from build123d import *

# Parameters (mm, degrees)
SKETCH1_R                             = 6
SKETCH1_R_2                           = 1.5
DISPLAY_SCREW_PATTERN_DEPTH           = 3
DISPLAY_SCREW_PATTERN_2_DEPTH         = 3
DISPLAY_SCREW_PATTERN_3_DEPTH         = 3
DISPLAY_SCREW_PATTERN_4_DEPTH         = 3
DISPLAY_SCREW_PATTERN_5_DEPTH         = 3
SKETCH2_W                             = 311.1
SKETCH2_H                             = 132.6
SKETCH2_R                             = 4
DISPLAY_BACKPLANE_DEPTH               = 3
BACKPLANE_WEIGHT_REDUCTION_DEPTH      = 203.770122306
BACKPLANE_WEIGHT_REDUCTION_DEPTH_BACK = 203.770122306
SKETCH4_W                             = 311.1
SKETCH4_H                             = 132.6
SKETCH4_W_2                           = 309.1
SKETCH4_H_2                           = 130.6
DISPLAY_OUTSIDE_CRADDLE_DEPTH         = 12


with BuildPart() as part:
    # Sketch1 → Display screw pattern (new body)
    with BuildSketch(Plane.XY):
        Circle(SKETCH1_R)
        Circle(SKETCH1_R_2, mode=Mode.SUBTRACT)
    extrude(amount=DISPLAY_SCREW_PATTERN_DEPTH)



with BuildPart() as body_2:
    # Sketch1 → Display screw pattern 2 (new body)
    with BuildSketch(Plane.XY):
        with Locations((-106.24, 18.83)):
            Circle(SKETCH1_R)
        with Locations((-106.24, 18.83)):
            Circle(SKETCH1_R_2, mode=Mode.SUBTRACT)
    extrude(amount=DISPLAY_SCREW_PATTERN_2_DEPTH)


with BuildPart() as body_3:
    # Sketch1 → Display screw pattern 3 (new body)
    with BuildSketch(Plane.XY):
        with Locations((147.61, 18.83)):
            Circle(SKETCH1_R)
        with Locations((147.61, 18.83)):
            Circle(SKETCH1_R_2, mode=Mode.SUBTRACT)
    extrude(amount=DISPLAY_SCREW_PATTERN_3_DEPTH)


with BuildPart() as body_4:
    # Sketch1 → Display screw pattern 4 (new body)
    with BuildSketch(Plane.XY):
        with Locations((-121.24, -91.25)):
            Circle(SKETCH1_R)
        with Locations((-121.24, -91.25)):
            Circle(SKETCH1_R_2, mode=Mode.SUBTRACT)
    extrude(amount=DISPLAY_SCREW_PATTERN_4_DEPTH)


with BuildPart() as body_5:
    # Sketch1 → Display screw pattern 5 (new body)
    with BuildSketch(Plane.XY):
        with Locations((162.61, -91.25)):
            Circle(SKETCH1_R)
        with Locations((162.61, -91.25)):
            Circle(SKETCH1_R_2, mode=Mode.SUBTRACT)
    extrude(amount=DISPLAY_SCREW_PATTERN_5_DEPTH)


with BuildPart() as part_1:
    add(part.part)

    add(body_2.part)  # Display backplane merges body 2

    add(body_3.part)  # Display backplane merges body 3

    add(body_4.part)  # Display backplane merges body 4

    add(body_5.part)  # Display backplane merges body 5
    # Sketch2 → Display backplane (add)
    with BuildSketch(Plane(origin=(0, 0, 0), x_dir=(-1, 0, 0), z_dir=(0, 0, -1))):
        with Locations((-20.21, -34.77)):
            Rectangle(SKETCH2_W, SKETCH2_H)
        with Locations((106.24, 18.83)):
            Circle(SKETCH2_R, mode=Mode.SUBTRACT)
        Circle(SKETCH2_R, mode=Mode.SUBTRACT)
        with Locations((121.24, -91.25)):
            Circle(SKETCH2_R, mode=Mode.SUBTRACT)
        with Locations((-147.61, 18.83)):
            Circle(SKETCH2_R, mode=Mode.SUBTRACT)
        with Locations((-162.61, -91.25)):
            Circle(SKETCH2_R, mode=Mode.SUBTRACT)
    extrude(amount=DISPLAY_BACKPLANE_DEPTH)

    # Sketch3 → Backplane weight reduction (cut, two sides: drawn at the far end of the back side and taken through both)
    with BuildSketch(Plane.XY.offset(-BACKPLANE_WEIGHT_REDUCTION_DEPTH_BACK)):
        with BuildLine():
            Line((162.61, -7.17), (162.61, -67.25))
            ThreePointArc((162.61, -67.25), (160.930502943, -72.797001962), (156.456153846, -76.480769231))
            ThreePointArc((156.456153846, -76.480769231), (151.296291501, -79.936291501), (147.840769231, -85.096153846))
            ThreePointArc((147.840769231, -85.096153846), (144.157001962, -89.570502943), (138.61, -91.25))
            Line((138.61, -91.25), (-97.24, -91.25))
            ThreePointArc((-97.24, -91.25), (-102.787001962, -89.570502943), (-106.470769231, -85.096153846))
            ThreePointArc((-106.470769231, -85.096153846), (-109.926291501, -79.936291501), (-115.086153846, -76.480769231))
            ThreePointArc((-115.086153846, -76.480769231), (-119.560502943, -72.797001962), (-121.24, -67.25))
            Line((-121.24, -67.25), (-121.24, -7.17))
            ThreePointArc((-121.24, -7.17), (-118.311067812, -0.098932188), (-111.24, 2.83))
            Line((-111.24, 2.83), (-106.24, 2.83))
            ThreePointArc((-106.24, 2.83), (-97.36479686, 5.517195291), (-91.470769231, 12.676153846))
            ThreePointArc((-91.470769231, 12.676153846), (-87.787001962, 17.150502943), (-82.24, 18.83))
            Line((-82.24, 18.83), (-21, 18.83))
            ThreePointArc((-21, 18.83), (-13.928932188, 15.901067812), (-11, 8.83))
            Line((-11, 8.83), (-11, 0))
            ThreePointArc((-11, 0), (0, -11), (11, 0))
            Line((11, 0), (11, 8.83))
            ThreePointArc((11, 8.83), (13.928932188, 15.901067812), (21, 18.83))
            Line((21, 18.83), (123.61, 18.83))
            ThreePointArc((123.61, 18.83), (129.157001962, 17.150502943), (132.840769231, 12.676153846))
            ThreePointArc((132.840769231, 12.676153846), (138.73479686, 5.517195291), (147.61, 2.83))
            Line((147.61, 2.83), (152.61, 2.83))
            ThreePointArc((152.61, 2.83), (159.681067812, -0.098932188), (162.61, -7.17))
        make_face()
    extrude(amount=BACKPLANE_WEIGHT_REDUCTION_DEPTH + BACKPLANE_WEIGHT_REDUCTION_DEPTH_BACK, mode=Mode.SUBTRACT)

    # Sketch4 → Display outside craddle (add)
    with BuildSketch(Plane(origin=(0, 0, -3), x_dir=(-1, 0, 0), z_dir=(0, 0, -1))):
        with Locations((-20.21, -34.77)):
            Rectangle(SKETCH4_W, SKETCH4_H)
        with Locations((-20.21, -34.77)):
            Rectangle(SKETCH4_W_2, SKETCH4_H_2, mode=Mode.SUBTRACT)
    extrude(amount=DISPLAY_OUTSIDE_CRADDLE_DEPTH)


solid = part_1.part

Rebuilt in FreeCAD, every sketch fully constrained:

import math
import FreeCAD as App
import Part
import Sketcher

V = App.Vector

doc = App.newDocument("Part")
body = doc.addObject("PartDesign::Body", "Body")

# Sketch on XY plane
sketch1 = body.newObject("Sketcher::SketchObject", "Sketch")
sketch1.AttachmentSupport = (doc.getObject("XY_Plane"), [""])
sketch1.MapMode = "FlatFace"
sketch1.addGeometry([
    Part.Circle(V(0, 0, 0), V(0, 0, 1), 6),
    Part.Circle(V(0, 0, 0), V(0, 0, 1), 1.5),
], False)
sketch1.addConstraint([
    Sketcher.Constraint("Coincident", 0, 3, -1, 1),
    Sketcher.Constraint("Coincident", 1, 3, -1, 1),
    Sketcher.Constraint("Diameter", 0, 12.0),
    Sketcher.Constraint("Diameter", 1, 3.0),
])
pad1 = body.newObject("PartDesign::Pad", "Pad")
pad1.Profile = sketch1
pad1.Length = 3
body2 = doc.addObject("PartDesign::Body", "Body001")

# Sketch on XY plane
sketch2 = body2.newObject("Sketcher::SketchObject", "Sketch001")
sketch2.AttachmentSupport = (doc.getObject("XY_Plane001"), [""])
sketch2.MapMode = "FlatFace"
sketch2.addGeometry([
    Part.Circle(V(-106.2, 18.8, 0), V(0, 0, 1), 6),
    Part.Circle(V(-106.2, 18.8, 0), V(0, 0, 1), 1.5),
], False)
sketch2.addConstraint([
    Sketcher.Constraint("Coincident", 1, 3, 0, 3),
    Sketcher.Constraint("Diameter", 0, 12.0),
    Sketcher.Constraint("Diameter", 1, 3.0),
    Sketcher.Constraint("DistanceX", 0, 3, -1, 1, 106.24),
    Sketcher.Constraint("DistanceY", -1, 1, 0, 3, 18.83),
])
pad2 = body2.newObject("PartDesign::Pad", "Pad001")
pad2.Profile = sketch2
pad2.Length = 3
body3 = doc.addObject("PartDesign::Body", "Body002")

# Sketch on XY plane
sketch3 = body3.newObject("Sketcher::SketchObject", "Sketch002")
sketch3.AttachmentSupport = (doc.getObject("XY_Plane002"), [""])
sketch3.MapMode = "FlatFace"
sketch3.addGeometry([
    Part.Circle(V(147.6, 18.8, 0), V(0, 0, 1), 6),
    Part.Circle(V(147.6, 18.8, 0), V(0, 0, 1), 1.5),
], False)
sketch3.addConstraint([
    Sketcher.Constraint("Coincident", 1, 3, 0, 3),
    Sketcher.Constraint("Diameter", 0, 12.0),
    Sketcher.Constraint("Diameter", 1, 3.0),
    Sketcher.Constraint("DistanceX", -1, 1, 0, 3, 147.61),
    Sketcher.Constraint("DistanceY", -1, 1, 0, 3, 18.83),
])
pad3 = body3.newObject("PartDesign::Pad", "Pad002")
pad3.Profile = sketch3
pad3.Length = 3
body4 = doc.addObject("PartDesign::Body", "Body003")

# Sketch on XY plane
sketch4 = body4.newObject("Sketcher::SketchObject", "Sketch003")
sketch4.AttachmentSupport = (doc.getObject("XY_Plane003"), [""])
sketch4.MapMode = "FlatFace"
sketch4.addGeometry([
    Part.Circle(V(-121.2, -91.2, 0), V(0, 0, 1), 6),
    Part.Circle(V(-121.2, -91.2, 0), V(0, 0, 1), 1.5),
], False)
sketch4.addConstraint([
    Sketcher.Constraint("Coincident", 1, 3, 0, 3),
    Sketcher.Constraint("Diameter", 0, 12.0),
    Sketcher.Constraint("Diameter", 1, 3.0),
    Sketcher.Constraint("DistanceX", 0, 3, -1, 1, 121.24),
    Sketcher.Constraint("DistanceY", 0, 3, -1, 1, 91.25),
])
pad4 = body4.newObject("PartDesign::Pad", "Pad003")
pad4.Profile = sketch4
pad4.Length = 3
body5 = doc.addObject("PartDesign::Body", "Body004")

# Sketch on XY plane
sketch5 = body5.newObject("Sketcher::SketchObject", "Sketch004")
sketch5.AttachmentSupport = (doc.getObject("XY_Plane004"), [""])
sketch5.MapMode = "FlatFace"
sketch5.addGeometry([
    Part.Circle(V(162.6, -91.2, 0), V(0, 0, 1), 6),
    Part.Circle(V(162.6, -91.2, 0), V(0, 0, 1), 1.5),
], False)
sketch5.addConstraint([
    Sketcher.Constraint("Coincident", 1, 3, 0, 3),
    Sketcher.Constraint("Diameter", 0, 12.0),
    Sketcher.Constraint("Diameter", 1, 3.0),
    Sketcher.Constraint("DistanceX", -1, 1, 0, 3, 162.61),
    Sketcher.Constraint("DistanceY", 0, 3, -1, 1, 91.25),
])
pad5 = body5.newObject("PartDesign::Pad", "Pad004")
pad5.Profile = sketch5
pad5.Length = 3
body.AllowCompound = True
doc.recompute()

boolean = body.newObject("PartDesign::Boolean", "Boolean")
boolean.Type = "Fuse"
boolean.addObjects([body2])
doc.recompute()

boolean2 = body.newObject("PartDesign::Boolean", "Boolean001")
boolean2.Type = "Fuse"
boolean2.addObjects([body3])
doc.recompute()

boolean3 = body.newObject("PartDesign::Boolean", "Boolean002")
boolean3.Type = "Fuse"
boolean3.addObjects([body4])
doc.recompute()

boolean4 = body.newObject("PartDesign::Boolean", "Boolean003")
boolean4.Type = "Fuse"
boolean4.addObjects([body5])

# Sketch on XY plane
sketch6 = body.newObject("Sketcher::SketchObject", "Sketch005")
sketch6.AttachmentSupport = (doc.getObject("XY_Plane"), [""])
sketch6.MapMode = "FlatFace"
sketch6.addGeometry([
    Part.LineSegment(V(175.8, 31.5, 0), V(175.8, -101.1, 0)),  # 0
    Part.LineSegment(V(175.8, -101.1, 0), V(-135.3, -101.1, 0)),  # 1
    Part.LineSegment(V(-135.3, -101.1, 0), V(-135.3, 31.5, 0)),  # 2
    Part.LineSegment(V(-135.3, 31.5, 0), V(175.8, 31.5, 0)),  # 3
    Part.Circle(V(162.6, -91.2, 0), V(0, 0, 1), 4),  # 4
    Part.Circle(V(-121.2, -91.2, 0), V(0, 0, 1), 4),  # 5
    Part.Circle(V(147.6, 18.8, 0), V(0, 0, 1), 4),  # 6
    Part.Circle(V(0, 0, 0), V(0, 0, 1), 4),  # 7
    Part.Circle(V(-106.2, 18.8, 0), V(0, 0, 1), 4),  # 8
], False)
sketch6.addConstraint([
    Sketcher.Constraint("Coincident", 0, 2, 1, 1),
    Sketcher.Constraint("Coincident", 1, 2, 2, 1),
    Sketcher.Constraint("Coincident", 2, 2, 3, 1),
    Sketcher.Constraint("Coincident", 3, 2, 0, 1),
    Sketcher.Constraint("Vertical", 0),
    Sketcher.Constraint("Horizontal", 1),
    Sketcher.Constraint("Vertical", 2),
    Sketcher.Constraint("Horizontal", 3),
    Sketcher.Constraint("Coincident", 7, 3, -1, 1),
    Sketcher.Constraint("Equal", 4, 5),
    Sketcher.Constraint("Equal", 5, 6),
    Sketcher.Constraint("Equal", 6, 7),
    Sketcher.Constraint("Equal", 7, 8),
    Sketcher.Constraint("Horizontal", 4, 3, 5, 3),
    Sketcher.Constraint("Horizontal", 6, 3, 8, 3),
    Sketcher.Constraint("Diameter", 4, 8.0),
    Sketcher.Constraint("DistanceX", 1, 2, 1, 1, 311.1),
    Sketcher.Constraint("DistanceY", 0, 2, 0, 1, 132.6),
    Sketcher.Constraint("DistanceX", 6, 3, 4, 3, 15.0),
    Sketcher.Constraint("DistanceX", 5, 3, 8, 3, 15.0),
    Sketcher.Constraint("DistanceX", 5, 3, 0, 2, 297.0),
    Sketcher.Constraint("DistanceY", 0, 2, 6, 3, 119.9),
    Sketcher.Constraint("DistanceX", -1, 1, 4, 3, 162.61),
    Sketcher.Constraint("DistanceY", 4, 3, -1, 1, 91.25),
    Sketcher.Constraint("DistanceX", 5, 3, -1, 1, 121.24),
    Sketcher.Constraint("DistanceY", -1, 1, 6, 3, 18.83),
])
pad6 = body.newObject("PartDesign::Pad", "Pad005")
pad6.Profile = sketch6
pad6.Length = 3
pad6.Reversed = True

# Sketch on XY plane
sketch7 = body.newObject("Sketcher::SketchObject", "Sketch006")
sketch7.AttachmentSupport = (doc.getObject("XY_Plane"), [""])
sketch7.MapMode = "FlatFace"
sketch7.addGeometry([
    Part.LineSegment(V(163, -67, 0), V(163, -7, 0)),  # 0
    Part.ArcOfCircle(Part.Circle(V(153, -7, 0), V(0, 0, 1), 10), math.radians(0), math.radians(90)),  # 1
    Part.LineSegment(V(153, 3, 0), V(148, 3, 0)),  # 2
    Part.ArcOfCircle(Part.Circle(V(148, 19, 0), V(0, 0, 1), 16), math.radians(-157), math.radians(-90)),  # 3
    Part.ArcOfCircle(Part.Circle(V(124, 9, 0), V(0, 0, 1), 10), math.radians(23), math.radians(90)),  # 4
    Part.LineSegment(V(124, 19, 0), V(21, 19, 0)),  # 5
    Part.ArcOfCircle(Part.Circle(V(21, 9, 0), V(0, 0, 1), 10), math.radians(90), math.radians(180)),  # 6
    Part.LineSegment(V(11, 9, 0), V(11, 0, 0)),  # 7
    Part.ArcOfCircle(Part.Circle(V(0, 0, 0), V(0, 0, 1), 11), math.radians(180), math.radians(360)),  # 8
    Part.LineSegment(V(-11, 0, 0), V(-11, 9, 0)),  # 9
    Part.ArcOfCircle(Part.Circle(V(-21, 9, 0), V(0, 0, 1), 10), math.radians(0), math.radians(90)),  # 10
    Part.LineSegment(V(-21, 19, 0), V(-82, 19, 0)),  # 11
    Part.ArcOfCircle(Part.Circle(V(-82, 9, 0), V(0, 0, 1), 10), math.radians(90), math.radians(157)),  # 12
    Part.ArcOfCircle(Part.Circle(V(-106, 19, 0), V(0, 0, 1), 16), math.radians(-90), math.radians(-23)),  # 13
    Part.LineSegment(V(-106, 3, 0), V(-111, 3, 0)),  # 14
    Part.ArcOfCircle(Part.Circle(V(-111, -7, 0), V(0, 0, 1), 10), math.radians(90), math.radians(180)),  # 15
    Part.LineSegment(V(-121, -7, 0), V(-121, -67, 0)),  # 16
    Part.ArcOfCircle(Part.Circle(V(-111, -67, 0), V(0, 0, 1), 10), math.radians(-180), math.radians(-113)),  # 17
    Part.ArcOfCircle(Part.Circle(V(-121, -91, 0), V(0, 0, 1), 16), math.radians(23), math.radians(67)),  # 18
    Part.ArcOfCircle(Part.Circle(V(-97, -81, 0), V(0, 0, 1), 10), math.radians(-157), math.radians(-90)),  # 19
    Part.LineSegment(V(-97, -91, 0), V(139, -91, 0)),  # 20
    Part.ArcOfCircle(Part.Circle(V(139, -81, 0), V(0, 0, 1), 10), math.radians(-90), math.radians(-23)),  # 21
    Part.ArcOfCircle(Part.Circle(V(163, -91, 0), V(0, 0, 1), 16), math.radians(113), math.radians(157)),  # 22
    Part.ArcOfCircle(Part.Circle(V(153, -67, 0), V(0, 0, 1), 10), math.radians(-67), math.radians(0)),  # 23
], False)
sketch7.addConstraint([
    Sketcher.Constraint("Tangent", 0, 2, 1, 1),
    Sketcher.Constraint("Tangent", 1, 2, 2, 1),
    Sketcher.Constraint("Tangent", 2, 2, 3, 2),
    Sketcher.Constraint("Tangent", 3, 1, 4, 1),
    Sketcher.Constraint("Tangent", 4, 2, 5, 1),
    Sketcher.Constraint("Tangent", 5, 2, 6, 1),
    Sketcher.Constraint("Tangent", 6, 2, 7, 1),
    Sketcher.Constraint("Tangent", 7, 2, 8, 2),
    Sketcher.Constraint("Tangent", 8, 1, 9, 1),
    Sketcher.Constraint("Tangent", 9, 2, 10, 1),
    Sketcher.Constraint("Tangent", 10, 2, 11, 1),
    Sketcher.Constraint("Tangent", 11, 2, 12, 1),
    Sketcher.Constraint("Tangent", 12, 2, 13, 2),
    Sketcher.Constraint("Tangent", 13, 1, 14, 1),
    Sketcher.Constraint("Tangent", 14, 2, 15, 1),
    Sketcher.Constraint("Tangent", 15, 2, 16, 1),
    Sketcher.Constraint("Tangent", 16, 2, 17, 1),
    Sketcher.Constraint("Tangent", 17, 2, 18, 2),
    Sketcher.Constraint("Tangent", 18, 1, 19, 1),
    Sketcher.Constraint("Tangent", 19, 2, 20, 1),
    Sketcher.Constraint("Tangent", 20, 2, 21, 1),
    Sketcher.Constraint("Tangent", 21, 2, 22, 2),
    Sketcher.Constraint("Tangent", 22, 1, 23, 1),
    Sketcher.Constraint("Tangent", 23, 2, 0, 1),
    Sketcher.Constraint("Vertical", 0),
    Sketcher.Constraint("Horizontal", 2),
    Sketcher.Constraint("Horizontal", 5),
    Sketcher.Constraint("Vertical", 7),
    Sketcher.Constraint("Vertical", 9),
    Sketcher.Constraint("Horizontal", 11),
    Sketcher.Constraint("Horizontal", 14),
    Sketcher.Constraint("Vertical", 16),
    Sketcher.Constraint("Horizontal", 20),
    Sketcher.Constraint("Coincident", 8, 3, -1, 1),
    Sketcher.Constraint("Equal", 1, 4),
    Sketcher.Constraint("Equal", 4, 6),
    Sketcher.Constraint("Equal", 6, 10),
    Sketcher.Constraint("Equal", 10, 12),
    Sketcher.Constraint("Equal", 3, 13),
    Sketcher.Constraint("Equal", 12, 15),
    Sketcher.Constraint("Equal", 15, 17),
    Sketcher.Constraint("Equal", 13, 18),
    Sketcher.Constraint("Equal", 17, 19),
    Sketcher.Constraint("Equal", 19, 21),
    Sketcher.Constraint("Equal", 18, 22),
    Sketcher.Constraint("Equal", 21, 23),
    Sketcher.Constraint("Horizontal", 6, 3, 10, 3),
    Sketcher.Constraint("Horizontal", 3, 3, 13, 3),
    Sketcher.Constraint("Horizontal", 18, 3, 22, 3),
    Sketcher.Constraint("Horizontal", 17, 3, 23, 3),
    Sketcher.Constraint("Horizontal", 13, 3, 4, 2),
    Sketcher.Constraint("Horizontal", 22, 3, 19, 2),
    Sketcher.Constraint("Vertical", 22, 3, 0, 2),
    Sketcher.Constraint("Equal", 2, 14),
    Sketcher.Constraint("Radius", 1, 10.0),
    Sketcher.Constraint("Radius", 3, 16.0),
    Sketcher.Constraint("Radius", 8, 11.0),
    Sketcher.Constraint("DistanceX", 2, 2, 2, 1, 5.0),
    Sketcher.Constraint("DistanceX", 5, 2, 5, 1, 102.61),
    Sketcher.Constraint("DistanceX", 11, 2, 11, 1, 61.24),
    Sketcher.Constraint("DistanceY", 0, 1, 0, 2, 60.08),
    Sketcher.Constraint("DistanceY", 7, 2, 7, 1, 8.83),
])
pocket1 = body.newObject("PartDesign::Pocket", "Pocket")
pocket1.Profile = sketch7
pocket1.Type = "ThroughAll"
pocket1.Midplane = True

# Sketch on XY plane
sketch8 = body.newObject("Sketcher::SketchObject", "Sketch007")
sketch8.AttachmentSupport = (doc.getObject("XY_Plane"), [""])
sketch8.MapMode = "FlatFace"
sketch8.AttachmentOffset = App.Placement(V(0, 0, -3), App.Rotation())
sketch8.addGeometry([
    Part.LineSegment(V(176, 32, 0), V(176, -101, 0)),  # 0
    Part.LineSegment(V(176, -101, 0), V(-135, -101, 0)),  # 1
    Part.LineSegment(V(-135, -101, 0), V(-135, 32, 0)),  # 2
    Part.LineSegment(V(-135, 32, 0), V(176, 32, 0)),  # 3
    Part.LineSegment(V(-134, -100, 0), V(175, -100, 0)),  # 4
    Part.LineSegment(V(175, -100, 0), V(175, 31, 0)),  # 5
    Part.LineSegment(V(175, 31, 0), V(-134, 31, 0)),  # 6
    Part.LineSegment(V(-134, 31, 0), V(-134, -100, 0)),  # 7
], False)
sketch8.addConstraint([
    Sketcher.Constraint("Coincident", 0, 2, 1, 1),
    Sketcher.Constraint("Coincident", 1, 2, 2, 1),
    Sketcher.Constraint("Coincident", 2, 2, 3, 1),
    Sketcher.Constraint("Coincident", 3, 2, 0, 1),
    Sketcher.Constraint("Coincident", 4, 2, 5, 1),
    Sketcher.Constraint("Coincident", 5, 2, 6, 1),
    Sketcher.Constraint("Coincident", 6, 2, 7, 1),
    Sketcher.Constraint("Coincident", 7, 2, 4, 1),
    Sketcher.Constraint("Vertical", 0),
    Sketcher.Constraint("Horizontal", 1),
    Sketcher.Constraint("Vertical", 2),
    Sketcher.Constraint("Horizontal", 3),
    Sketcher.Constraint("Horizontal", 4),
    Sketcher.Constraint("Vertical", 5),
    Sketcher.Constraint("Horizontal", 6),
    Sketcher.Constraint("Vertical", 7),
    Sketcher.Constraint("DistanceX", 1, 2, 1, 1, 311.1),
    Sketcher.Constraint("DistanceX", 4, 1, 4, 2, 309.1),
    Sketcher.Constraint("DistanceY", 0, 2, 0, 1, 132.6),
    Sketcher.Constraint("DistanceY", 5, 1, 5, 2, 130.6),
    Sketcher.Constraint("DistanceX", 4, 2, 0, 2, 1.0),
    Sketcher.Constraint("DistanceY", 0, 2, 4, 2, 1.0),
    Sketcher.Constraint("DistanceX", -1, 1, 0, 2, 175.76),
    Sketcher.Constraint("DistanceY", 0, 2, -1, 1, 101.07),
])
pad7 = body.newObject("PartDesign::Pad", "Pad006")
pad7.Profile = sketch8
pad7.Length = 12
pad7.Reversed = True

doc.recompute()
